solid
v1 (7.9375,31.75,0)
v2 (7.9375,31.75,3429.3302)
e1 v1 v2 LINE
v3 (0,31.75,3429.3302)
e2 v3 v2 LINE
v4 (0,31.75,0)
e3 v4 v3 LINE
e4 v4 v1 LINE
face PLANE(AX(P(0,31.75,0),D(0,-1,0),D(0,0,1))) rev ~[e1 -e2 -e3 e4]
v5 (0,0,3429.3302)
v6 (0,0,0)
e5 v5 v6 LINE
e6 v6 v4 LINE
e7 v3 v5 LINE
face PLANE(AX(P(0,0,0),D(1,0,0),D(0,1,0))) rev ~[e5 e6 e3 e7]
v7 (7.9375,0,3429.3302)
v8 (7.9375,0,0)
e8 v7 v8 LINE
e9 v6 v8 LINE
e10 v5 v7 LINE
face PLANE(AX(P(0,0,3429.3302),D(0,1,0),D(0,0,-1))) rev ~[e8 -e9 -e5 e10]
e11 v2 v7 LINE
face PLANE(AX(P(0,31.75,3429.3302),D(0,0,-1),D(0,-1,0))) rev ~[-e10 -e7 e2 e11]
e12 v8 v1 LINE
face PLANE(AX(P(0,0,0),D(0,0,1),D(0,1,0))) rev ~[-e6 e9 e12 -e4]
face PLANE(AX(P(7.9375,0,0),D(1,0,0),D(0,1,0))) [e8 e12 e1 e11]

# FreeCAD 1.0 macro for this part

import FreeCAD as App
import Part
import Sketcher
Q = App.Units.Quantity


def add_polygon(sketch, points):
    """Adds a closed chain of lines whose ends are joined by coincident constraints."""
    first, n = sketch.GeometryCount, len(points)
    for a, b in zip(points, points[1:] + points[:1]):
        sketch.addGeometry(Part.LineSegment(App.Vector(*a, 0), App.Vector(*b, 0)), False)
    for i in range(n):
        sketch.addConstraint(Sketcher.Constraint("Coincident", first + i, 2, first + (i + 1) % n, 1))

doc = App.newDocument("Part")
body = doc.addObject("PartDesign::Body", "Body")

# Sketch on YZ plane
sketch1 = doc.addObject("Sketcher::SketchObject", "Sketch")
body.addObject(sketch1)
sketch1.AttachmentSupport = (doc.YZ_Plane, [""])
sketch1.MapMode = "FlatFace"
add_polygon(sketch1, [(0, 3429), (0, 0), (32, 0), (32, 3429)])  # lines 0-3
sketch1.addConstraint([
    Sketcher.Constraint("Vertical", 0),
    Sketcher.Constraint("Horizontal", 1),
    Sketcher.Constraint("Vertical", 2),
    Sketcher.Constraint("Horizontal", 3),
    Sketcher.Constraint("Coincident", 0, 2, -1, 1),
    Sketcher.Constraint("DistanceX", 1, 1, 1, 2, Q("1.25 in")),
    Sketcher.Constraint("DistanceY", 0, 2, 0, 1, Q("135.013 in")),
])
pad1 = doc.addObject("PartDesign::Pad", "Pad")
body.addObject(pad1)
pad1.Profile = sketch1
pad1.Length = Q("0.3125 in")

doc.recompute()
